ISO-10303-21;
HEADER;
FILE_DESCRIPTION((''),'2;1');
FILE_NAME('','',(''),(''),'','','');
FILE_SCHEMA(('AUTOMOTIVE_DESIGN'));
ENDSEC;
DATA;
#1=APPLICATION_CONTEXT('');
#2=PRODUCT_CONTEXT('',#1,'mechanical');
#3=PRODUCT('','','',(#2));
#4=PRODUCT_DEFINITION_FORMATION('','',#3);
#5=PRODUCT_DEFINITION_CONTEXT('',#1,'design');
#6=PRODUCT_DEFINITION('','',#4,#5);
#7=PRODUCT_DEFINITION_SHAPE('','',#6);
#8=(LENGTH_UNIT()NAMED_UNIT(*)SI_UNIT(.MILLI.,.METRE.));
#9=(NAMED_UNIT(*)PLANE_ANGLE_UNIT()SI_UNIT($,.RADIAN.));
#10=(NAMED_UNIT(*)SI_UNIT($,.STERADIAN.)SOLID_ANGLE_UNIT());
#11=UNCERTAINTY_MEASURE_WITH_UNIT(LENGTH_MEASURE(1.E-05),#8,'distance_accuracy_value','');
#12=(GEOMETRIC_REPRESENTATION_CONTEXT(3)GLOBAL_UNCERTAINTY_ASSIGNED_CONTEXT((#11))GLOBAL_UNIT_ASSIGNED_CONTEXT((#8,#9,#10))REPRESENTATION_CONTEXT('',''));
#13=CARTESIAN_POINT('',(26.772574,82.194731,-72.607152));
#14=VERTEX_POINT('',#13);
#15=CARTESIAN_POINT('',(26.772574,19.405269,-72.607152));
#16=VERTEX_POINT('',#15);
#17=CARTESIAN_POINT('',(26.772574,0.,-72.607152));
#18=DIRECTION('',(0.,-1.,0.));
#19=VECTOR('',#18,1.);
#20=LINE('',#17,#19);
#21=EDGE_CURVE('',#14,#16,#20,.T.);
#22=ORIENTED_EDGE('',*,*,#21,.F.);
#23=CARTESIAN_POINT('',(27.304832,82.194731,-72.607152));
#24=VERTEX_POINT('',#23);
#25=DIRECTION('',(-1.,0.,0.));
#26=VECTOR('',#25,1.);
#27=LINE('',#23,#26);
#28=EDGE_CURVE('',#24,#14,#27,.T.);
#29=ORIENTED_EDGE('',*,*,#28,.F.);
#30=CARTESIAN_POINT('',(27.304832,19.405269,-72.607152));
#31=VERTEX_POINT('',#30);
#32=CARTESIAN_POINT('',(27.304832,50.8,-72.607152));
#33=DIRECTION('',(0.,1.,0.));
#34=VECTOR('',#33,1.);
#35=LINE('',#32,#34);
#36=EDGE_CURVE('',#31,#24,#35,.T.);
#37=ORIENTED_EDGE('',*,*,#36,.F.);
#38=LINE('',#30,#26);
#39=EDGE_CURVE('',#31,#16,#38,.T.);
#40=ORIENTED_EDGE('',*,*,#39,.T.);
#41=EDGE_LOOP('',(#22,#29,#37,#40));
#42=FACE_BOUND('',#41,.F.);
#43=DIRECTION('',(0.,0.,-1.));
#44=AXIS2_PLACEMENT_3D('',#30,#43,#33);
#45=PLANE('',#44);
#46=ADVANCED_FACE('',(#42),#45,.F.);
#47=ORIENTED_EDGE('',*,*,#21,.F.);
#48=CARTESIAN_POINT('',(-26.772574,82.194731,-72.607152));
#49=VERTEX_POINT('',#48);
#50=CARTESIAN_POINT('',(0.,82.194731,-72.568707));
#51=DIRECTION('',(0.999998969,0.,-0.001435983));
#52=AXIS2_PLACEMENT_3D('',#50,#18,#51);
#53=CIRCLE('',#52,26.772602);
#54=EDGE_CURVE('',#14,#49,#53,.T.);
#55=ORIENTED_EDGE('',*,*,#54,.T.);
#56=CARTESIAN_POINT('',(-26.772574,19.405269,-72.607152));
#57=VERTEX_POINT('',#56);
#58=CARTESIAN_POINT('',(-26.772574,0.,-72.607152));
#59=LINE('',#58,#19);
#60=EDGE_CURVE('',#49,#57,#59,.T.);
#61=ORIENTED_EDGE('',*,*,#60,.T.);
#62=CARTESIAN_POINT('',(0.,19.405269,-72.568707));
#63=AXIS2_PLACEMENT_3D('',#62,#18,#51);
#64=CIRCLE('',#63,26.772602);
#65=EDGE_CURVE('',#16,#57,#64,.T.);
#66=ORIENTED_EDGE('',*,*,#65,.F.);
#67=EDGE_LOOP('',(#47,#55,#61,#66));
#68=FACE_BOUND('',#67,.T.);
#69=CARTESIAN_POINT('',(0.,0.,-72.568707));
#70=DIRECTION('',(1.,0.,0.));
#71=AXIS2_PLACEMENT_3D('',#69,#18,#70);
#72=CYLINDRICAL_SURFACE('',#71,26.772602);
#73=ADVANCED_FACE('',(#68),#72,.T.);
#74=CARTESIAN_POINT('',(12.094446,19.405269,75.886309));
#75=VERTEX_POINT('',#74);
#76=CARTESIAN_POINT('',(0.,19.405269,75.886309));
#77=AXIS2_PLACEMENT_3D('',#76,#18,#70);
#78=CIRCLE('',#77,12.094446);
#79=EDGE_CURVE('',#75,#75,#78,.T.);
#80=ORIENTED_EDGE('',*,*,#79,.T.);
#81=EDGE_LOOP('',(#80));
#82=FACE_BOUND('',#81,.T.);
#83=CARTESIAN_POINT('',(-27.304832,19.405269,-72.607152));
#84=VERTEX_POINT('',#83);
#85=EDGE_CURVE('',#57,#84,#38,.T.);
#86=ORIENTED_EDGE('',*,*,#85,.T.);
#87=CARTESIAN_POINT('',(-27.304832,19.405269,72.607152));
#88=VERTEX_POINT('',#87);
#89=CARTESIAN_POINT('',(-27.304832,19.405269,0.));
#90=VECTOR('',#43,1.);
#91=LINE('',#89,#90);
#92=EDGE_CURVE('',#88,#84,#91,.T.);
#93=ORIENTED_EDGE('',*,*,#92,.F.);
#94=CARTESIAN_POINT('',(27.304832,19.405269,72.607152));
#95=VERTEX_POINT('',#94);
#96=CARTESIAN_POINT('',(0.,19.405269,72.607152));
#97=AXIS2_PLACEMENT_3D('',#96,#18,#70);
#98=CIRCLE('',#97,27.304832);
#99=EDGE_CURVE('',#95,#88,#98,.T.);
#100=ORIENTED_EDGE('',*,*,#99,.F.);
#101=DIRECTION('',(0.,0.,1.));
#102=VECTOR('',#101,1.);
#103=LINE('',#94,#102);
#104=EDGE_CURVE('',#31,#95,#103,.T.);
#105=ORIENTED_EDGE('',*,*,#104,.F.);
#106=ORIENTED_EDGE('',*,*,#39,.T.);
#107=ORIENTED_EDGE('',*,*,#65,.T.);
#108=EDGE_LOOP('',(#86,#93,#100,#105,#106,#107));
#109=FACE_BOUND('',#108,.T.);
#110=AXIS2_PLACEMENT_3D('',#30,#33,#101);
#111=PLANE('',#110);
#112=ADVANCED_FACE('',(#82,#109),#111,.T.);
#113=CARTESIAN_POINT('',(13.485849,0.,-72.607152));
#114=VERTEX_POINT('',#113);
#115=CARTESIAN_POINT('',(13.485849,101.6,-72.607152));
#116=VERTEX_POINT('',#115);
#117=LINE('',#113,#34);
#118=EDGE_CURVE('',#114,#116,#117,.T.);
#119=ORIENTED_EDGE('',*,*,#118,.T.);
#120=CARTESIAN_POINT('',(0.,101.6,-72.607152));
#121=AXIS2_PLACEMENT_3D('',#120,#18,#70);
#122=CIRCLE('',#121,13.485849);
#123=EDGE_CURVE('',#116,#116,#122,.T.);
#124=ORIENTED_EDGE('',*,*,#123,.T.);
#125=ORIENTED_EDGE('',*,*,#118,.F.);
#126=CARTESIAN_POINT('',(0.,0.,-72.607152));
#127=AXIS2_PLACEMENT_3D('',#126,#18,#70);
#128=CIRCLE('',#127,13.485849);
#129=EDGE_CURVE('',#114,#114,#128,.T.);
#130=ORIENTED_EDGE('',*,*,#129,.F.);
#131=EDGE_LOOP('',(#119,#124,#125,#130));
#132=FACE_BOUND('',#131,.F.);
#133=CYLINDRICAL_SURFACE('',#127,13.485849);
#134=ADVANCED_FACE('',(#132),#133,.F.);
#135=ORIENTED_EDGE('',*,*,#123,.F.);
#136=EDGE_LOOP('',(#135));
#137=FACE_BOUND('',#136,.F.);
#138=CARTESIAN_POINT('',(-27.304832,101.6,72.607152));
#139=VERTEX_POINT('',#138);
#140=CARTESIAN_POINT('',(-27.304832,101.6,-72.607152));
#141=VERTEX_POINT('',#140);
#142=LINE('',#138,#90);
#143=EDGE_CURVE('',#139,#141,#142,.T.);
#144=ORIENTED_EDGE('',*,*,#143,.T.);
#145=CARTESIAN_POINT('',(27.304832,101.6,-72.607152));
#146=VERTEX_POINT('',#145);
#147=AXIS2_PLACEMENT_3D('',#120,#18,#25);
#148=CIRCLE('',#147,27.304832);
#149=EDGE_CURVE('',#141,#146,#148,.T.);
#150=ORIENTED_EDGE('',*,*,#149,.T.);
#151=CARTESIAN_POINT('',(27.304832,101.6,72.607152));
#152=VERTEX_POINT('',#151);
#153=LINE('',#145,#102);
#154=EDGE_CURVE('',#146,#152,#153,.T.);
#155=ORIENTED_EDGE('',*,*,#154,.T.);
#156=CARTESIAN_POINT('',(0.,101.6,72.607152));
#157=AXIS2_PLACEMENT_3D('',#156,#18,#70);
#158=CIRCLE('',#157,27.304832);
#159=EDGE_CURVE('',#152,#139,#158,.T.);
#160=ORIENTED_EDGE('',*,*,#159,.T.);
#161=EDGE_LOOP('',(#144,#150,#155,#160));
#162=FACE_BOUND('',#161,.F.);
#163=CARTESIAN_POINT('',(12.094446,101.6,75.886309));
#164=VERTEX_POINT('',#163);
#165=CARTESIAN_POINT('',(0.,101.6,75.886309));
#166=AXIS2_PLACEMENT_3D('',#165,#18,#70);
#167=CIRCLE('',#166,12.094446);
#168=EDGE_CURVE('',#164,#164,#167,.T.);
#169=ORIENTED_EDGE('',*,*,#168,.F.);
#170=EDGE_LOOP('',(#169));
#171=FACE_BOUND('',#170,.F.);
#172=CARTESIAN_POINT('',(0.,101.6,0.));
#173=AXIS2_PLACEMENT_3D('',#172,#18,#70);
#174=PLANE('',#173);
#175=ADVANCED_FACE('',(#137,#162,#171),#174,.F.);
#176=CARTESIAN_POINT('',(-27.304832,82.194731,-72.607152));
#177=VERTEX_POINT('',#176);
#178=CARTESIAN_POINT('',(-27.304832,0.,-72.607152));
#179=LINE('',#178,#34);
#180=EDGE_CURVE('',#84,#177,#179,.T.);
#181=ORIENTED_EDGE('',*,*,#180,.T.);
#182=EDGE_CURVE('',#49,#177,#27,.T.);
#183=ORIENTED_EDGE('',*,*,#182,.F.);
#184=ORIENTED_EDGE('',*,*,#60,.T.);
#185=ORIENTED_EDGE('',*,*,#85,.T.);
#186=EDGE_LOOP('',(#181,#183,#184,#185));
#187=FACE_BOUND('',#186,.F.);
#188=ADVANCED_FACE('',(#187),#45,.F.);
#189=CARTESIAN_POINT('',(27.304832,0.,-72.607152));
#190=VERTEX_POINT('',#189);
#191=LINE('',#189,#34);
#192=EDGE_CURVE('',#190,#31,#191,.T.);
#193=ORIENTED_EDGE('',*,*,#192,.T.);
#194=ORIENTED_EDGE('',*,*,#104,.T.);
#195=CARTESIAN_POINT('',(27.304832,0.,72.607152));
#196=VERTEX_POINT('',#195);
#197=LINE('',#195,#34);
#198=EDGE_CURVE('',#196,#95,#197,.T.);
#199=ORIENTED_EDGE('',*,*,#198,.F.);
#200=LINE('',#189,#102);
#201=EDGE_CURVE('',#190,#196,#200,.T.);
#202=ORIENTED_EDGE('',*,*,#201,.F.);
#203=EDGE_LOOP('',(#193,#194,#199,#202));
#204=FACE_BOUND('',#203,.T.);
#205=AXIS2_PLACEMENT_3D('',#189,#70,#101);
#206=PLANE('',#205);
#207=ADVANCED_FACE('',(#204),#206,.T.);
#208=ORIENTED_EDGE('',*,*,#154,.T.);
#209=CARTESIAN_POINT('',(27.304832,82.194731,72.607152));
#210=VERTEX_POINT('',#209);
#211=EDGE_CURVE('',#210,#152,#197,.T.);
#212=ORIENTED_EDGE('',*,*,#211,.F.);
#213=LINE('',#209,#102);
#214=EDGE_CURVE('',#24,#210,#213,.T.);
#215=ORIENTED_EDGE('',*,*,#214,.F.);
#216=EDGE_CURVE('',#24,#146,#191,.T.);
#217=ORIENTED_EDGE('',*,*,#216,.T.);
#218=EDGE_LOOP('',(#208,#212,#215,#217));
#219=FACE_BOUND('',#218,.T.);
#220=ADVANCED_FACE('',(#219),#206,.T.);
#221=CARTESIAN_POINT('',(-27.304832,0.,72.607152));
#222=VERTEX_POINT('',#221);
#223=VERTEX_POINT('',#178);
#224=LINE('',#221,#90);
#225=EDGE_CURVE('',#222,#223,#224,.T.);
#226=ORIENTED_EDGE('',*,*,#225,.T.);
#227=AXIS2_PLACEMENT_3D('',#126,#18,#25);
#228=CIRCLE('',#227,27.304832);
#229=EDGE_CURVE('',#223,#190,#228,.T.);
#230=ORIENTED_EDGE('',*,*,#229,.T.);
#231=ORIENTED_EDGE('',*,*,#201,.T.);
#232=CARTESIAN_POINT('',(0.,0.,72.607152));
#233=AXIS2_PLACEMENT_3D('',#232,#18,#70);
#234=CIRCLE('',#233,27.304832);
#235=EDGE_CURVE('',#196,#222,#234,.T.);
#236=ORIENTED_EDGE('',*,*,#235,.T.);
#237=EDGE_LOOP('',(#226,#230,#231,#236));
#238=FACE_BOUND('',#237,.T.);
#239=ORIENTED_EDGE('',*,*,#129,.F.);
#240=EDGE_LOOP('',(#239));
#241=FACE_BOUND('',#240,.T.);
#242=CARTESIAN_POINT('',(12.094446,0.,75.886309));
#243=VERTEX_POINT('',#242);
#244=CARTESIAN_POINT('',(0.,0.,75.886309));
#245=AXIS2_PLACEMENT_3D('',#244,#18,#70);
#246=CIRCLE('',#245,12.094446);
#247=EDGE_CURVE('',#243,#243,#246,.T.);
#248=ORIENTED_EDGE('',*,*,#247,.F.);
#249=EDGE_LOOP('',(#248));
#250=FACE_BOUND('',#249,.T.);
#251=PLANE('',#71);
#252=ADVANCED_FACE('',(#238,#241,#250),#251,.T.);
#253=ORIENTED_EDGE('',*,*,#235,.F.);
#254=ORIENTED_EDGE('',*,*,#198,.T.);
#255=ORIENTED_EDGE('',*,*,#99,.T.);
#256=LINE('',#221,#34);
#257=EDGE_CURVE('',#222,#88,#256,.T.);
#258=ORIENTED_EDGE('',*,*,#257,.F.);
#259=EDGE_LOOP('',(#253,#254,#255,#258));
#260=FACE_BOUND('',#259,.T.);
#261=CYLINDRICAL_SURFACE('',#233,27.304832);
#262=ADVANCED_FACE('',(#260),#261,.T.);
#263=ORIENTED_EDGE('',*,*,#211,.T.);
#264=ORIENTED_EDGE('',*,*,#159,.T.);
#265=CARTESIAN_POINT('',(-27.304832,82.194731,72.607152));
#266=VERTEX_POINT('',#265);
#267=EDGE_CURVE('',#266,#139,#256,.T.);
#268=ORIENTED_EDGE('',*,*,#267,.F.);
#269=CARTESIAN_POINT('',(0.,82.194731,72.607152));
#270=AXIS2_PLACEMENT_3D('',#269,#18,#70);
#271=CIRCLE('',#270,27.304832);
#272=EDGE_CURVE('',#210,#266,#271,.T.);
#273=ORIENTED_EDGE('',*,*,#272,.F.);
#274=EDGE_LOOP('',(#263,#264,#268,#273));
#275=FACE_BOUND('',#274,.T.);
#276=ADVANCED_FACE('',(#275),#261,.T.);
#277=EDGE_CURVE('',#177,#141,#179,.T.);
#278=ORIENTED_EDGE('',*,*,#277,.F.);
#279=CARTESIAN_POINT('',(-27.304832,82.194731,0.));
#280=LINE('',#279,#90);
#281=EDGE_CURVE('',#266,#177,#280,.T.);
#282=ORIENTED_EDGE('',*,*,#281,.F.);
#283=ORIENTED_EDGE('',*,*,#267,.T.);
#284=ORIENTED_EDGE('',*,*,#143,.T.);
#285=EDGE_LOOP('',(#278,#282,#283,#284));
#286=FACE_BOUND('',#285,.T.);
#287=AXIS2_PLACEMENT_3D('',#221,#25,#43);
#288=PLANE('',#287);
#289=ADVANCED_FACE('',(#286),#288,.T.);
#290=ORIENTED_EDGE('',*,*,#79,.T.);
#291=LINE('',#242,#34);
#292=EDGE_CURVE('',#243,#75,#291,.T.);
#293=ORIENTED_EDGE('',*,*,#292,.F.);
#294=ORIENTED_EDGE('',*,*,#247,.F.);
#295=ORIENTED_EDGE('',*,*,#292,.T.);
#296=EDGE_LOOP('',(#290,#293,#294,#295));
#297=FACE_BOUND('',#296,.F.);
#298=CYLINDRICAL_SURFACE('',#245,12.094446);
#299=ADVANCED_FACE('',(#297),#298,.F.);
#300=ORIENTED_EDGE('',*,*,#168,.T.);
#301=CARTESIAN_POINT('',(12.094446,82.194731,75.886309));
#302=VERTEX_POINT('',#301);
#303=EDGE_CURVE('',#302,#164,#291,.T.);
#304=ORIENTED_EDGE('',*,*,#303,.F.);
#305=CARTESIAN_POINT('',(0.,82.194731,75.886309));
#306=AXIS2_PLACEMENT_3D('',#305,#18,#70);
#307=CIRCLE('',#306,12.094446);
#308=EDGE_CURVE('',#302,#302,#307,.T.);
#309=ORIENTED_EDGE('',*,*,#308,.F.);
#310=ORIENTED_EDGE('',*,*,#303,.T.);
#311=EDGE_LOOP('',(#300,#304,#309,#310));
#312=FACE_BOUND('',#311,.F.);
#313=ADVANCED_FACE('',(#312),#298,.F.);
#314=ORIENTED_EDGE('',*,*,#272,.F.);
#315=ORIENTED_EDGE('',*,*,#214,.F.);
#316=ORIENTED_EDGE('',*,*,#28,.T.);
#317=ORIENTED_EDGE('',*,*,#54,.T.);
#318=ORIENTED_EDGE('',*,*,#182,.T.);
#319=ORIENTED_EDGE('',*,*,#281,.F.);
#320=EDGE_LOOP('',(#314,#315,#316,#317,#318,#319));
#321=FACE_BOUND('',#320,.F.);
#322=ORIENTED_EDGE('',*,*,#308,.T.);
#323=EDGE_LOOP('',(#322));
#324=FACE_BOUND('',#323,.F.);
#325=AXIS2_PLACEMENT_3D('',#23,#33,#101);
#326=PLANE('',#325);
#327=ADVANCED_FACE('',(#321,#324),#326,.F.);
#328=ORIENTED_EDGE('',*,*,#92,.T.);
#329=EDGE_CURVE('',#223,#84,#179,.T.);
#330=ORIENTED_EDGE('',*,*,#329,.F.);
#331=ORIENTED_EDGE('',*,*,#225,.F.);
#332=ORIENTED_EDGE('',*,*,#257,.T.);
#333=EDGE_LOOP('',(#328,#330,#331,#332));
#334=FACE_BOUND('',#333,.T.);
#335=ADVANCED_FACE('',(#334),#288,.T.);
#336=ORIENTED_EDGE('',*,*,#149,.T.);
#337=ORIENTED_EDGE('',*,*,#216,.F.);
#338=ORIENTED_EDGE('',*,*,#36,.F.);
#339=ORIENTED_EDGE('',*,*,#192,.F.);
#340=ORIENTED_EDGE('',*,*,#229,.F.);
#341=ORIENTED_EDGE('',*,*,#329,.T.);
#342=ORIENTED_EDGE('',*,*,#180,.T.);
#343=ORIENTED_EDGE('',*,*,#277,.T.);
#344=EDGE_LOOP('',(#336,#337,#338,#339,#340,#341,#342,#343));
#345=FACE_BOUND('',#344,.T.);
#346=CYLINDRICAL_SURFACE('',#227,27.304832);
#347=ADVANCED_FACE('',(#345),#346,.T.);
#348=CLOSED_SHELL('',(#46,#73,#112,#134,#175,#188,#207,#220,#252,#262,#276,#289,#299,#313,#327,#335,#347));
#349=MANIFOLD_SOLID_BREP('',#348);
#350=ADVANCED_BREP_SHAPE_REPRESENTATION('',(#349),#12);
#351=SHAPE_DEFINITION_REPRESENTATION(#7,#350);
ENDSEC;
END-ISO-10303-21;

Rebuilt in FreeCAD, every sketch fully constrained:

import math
import FreeCAD as App
import Part
import Sketcher
from FreeCAD import Vector
Q = App.Units.Quantity

doc = App.newDocument("Part")
body = doc.addObject("PartDesign::Body", "Body")

# Sketch on XZ plane
sketch1 = body.newObject("Sketcher::SketchObject", "Sketch")
sketch1.AttachmentSupport = (doc.getObject("XZ_Plane"), [""])
sketch1.MapMode = "FlatFace"
sketch1.addGeometry([
    Part.LineSegment(Vector(27, -73, 0), Vector(27, 73, 0)),
    Part.ArcOfCircle(Part.Circle(Vector(0, 73, 0), Vector(0, 0, 1), 27), math.radians(0), math.radians(180)),
    Part.LineSegment(Vector(-27, 73, 0), Vector(-27, -73, 0)),
    Part.ArcOfCircle(Part.Circle(Vector(0, -73, 0), Vector(0, 0, 1), 27), math.radians(180), math.radians(360)),
], False)
sketch1.addConstraint([
    Sketcher.Constraint("Tangent", 0, 2, 1, 1),
    Sketcher.Constraint("Tangent", 1, 2, 2, 1),
    Sketcher.Constraint("Tangent", 2, 2, 3, 1),
    Sketcher.Constraint("Tangent", 3, 2, 0, 1),
    Sketcher.Constraint("Vertical", 0),
    Sketcher.Constraint("Vertical", 2),
    Sketcher.Constraint("Symmetric", 1, 3, 3, 3, -1, 1),
    Sketcher.Constraint("Radius", 1, Q("27.304832 mm")),
    Sketcher.Constraint("DistanceY", 0, 1, 0, 2, Q("145.214304 mm")),
])
pad1 = body.newObject("PartDesign::Pad", "Pad")
pad1.Profile = sketch1
pad1.Length = Q("4 in")
pad1.Reversed = True

# Sketch on YZ plane
sketch2 = body.newObject("Sketcher::SketchObject", "Sketch001")
sketch2.AttachmentSupport = (doc.getObject("YZ_Plane"), [""])
sketch2.MapMode = "FlatFace"
sketch2.AttachmentOffset = App.Placement(Vector(0, 0, 27.304832), App.Rotation())
sketch2.addGeometry([
    Part.LineSegment(Vector(19, 218, 0), Vector(19, -73, 0)),
    Part.LineSegment(Vector(19, -73, 0), Vector(82, -73, 0)),
    Part.LineSegment(Vector(82, -73, 0), Vector(82, 218, 0)),
    Part.LineSegment(Vector(82, 218, 0), Vector(19, 218, 0)),
], False)
sketch2.addConstraint([
    Sketcher.Constraint("Coincident", 0, 2, 1, 1),
    Sketcher.Constraint("Coincident", 1, 2, 2, 1),
    Sketcher.Constraint("Coincident", 2, 2, 3, 1),
    Sketcher.Constraint("Coincident", 3, 2, 0, 1),
    Sketcher.Constraint("Vertical", 0),
    Sketcher.Constraint("Horizontal", 1),
    Sketcher.Constraint("Vertical", 2),
    Sketcher.Constraint("Horizontal", 3),
    Sketcher.Constraint("DistanceY", 0, 2, 0, 1, Q("290.428608 mm")),
    Sketcher.Constraint("DistanceX", 1, 1, 1, 2, Q("62.789462 mm")),
    Sketcher.Constraint("DistanceX", -1, 1, 0, 2, Q("19.405269 mm")),
    Sketcher.Constraint("DistanceY", 0, 2, -1, 1, Q("72.607152 mm")),
])
pocket1 = body.newObject("PartDesign::Pocket", "Pocket")
pocket1.Profile = sketch2
pocket1.Length = Q("3 in")

# Sketch on XZ plane
sketch3 = body.newObject("Sketcher::SketchObject", "Sketch002")
sketch3.AttachmentSupport = (doc.getObject("XZ_Plane"), [""])
sketch3.MapMode = "FlatFace"
sketch3.addGeometry(Part.Circle(Vector(0, -73, 0), Vector(0, 0, 1), 27), False)
sketch3.addConstraint([
    Sketcher.Constraint("PointOnObject", 0, 3, -2),
    Sketcher.Constraint("Diameter", 0, Q("53.545204 mm")),
    Sketcher.Constraint("DistanceY", 0, 3, -1, 1, Q("72.568707 mm")),
])
pad2 = body.newObject("PartDesign::Pad", "Pad001")
pad2.Profile = sketch3
pad2.Length = Q("4 in")
pad2.Reversed = True

# Sketch on XZ plane
sketch4 = body.newObject("Sketcher::SketchObject", "Sketch003")
sketch4.AttachmentSupport = (doc.getObject("XZ_Plane"), [""])
sketch4.MapMode = "FlatFace"
sketch4.addGeometry([
    Part.Circle(Vector(0, 76, 0), Vector(0, 0, 1), 12),
    Part.Circle(Vector(0, -73, 0), Vector(0, 0, 1), 13),
], False)
sketch4.addConstraint([
    Sketcher.Constraint("PointOnObject", 0, 3, -2),
    Sketcher.Constraint("PointOnObject", 1, 3, -2),
    Sketcher.Constraint("Diameter", 1, Q("26.971698 mm")),
    Sketcher.Constraint("Diameter", 0, Q("24.188892 mm")),
    Sketcher.Constraint("DistanceY", -1, 1, 0, 3, Q("75.886309 mm")),
    Sketcher.Constraint("DistanceY", 1, 3, -1, 1, Q("72.607152 mm")),
])
pocket2 = body.newObject("PartDesign::Pocket", "Pocket001")
pocket2.Profile = sketch4
pocket2.Length = Q("4 in")

doc.recompute()
